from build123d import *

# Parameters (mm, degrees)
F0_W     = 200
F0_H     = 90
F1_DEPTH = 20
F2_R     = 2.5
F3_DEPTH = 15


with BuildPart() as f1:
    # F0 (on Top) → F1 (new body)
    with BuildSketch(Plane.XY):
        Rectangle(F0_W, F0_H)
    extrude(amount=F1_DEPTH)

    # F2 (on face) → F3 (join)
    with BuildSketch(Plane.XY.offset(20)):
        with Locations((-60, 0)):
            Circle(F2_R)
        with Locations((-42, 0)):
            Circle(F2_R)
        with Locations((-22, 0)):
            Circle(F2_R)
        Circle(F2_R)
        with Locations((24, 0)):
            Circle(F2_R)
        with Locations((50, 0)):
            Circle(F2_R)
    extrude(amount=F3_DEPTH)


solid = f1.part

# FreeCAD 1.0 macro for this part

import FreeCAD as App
import Part
import Sketcher

V = App.Vector

doc = App.newDocument("Part")
params = doc.addObject("Spreadsheet::Sheet", "Params")
for row, (alias, value) in enumerate([
    ("sketch1_width", "200 mm"),
    ("sketch1_height", "90 mm"),
    ("pad1_length", "20 mm"),
    ("sketch2_diameter", "5 mm"),
    ("pad2_length", "15 mm"),
], start=1):
    params.set(f"A{row}", alias)
    params.set(f"B{row}", "=" + value)
    params.setAlias(f"B{row}", alias)

body = doc.addObject("PartDesign::Body", "Body")

# Sketch on XY plane
sketch1 = body.newObject("Sketcher::SketchObject", "Sketch")
sketch1.AttachmentSupport = (doc.getObject("XY_Plane"), [""])
sketch1.MapMode = "FlatFace"
sketch1.addGeometry(Part.LineSegment(V(-100, 45, 0), V(-100, -45, 0)), False)
sketch1.addGeometry(Part.LineSegment(V(-100, -45, 0), V(100, -45, 0)), False)
sketch1.addGeometry(Part.LineSegment(V(100, -45, 0), V(100, 45, 0)), False)
sketch1.addGeometry(Part.LineSegment(V(100, 45, 0), V(-100, 45, 0)), False)
sketch1.addConstraint(Sketcher.Constraint("Coincident", 0, 2, 1, 1))
sketch1.addConstraint(Sketcher.Constraint("Coincident", 1, 2, 2, 1))
sketch1.addConstraint(Sketcher.Constraint("Coincident", 2, 2, 3, 1))
sketch1.addConstraint(Sketcher.Constraint("Coincident", 3, 2, 0, 1))
sketch1.addConstraint(Sketcher.Constraint("Vertical", 0))
sketch1.addConstraint(Sketcher.Constraint("Horizontal", 1))
sketch1.addConstraint(Sketcher.Constraint("Vertical", 2))
sketch1.addConstraint(Sketcher.Constraint("Horizontal", 3))
sketch1.addConstraint(Sketcher.Constraint("Symmetric", 0, 2, 2, 2, -1, 1))
sketch1.addConstraint(Sketcher.Constraint("DistanceX", 1, 1, 1, 2, 200.0))
sketch1.addConstraint(Sketcher.Constraint("DistanceY", 0, 2, 0, 1, 90.0))
sketch1.setExpression("Constraints[9]", "Params.sketch1_width")
sketch1.setExpression("Constraints[10]", "Params.sketch1_height")
pad1 = body.newObject("PartDesign::Pad", "Pad")
pad1.Profile = sketch1
pad1.setExpression("Length", "Params.pad1_length")

# Sketch on XY plane
sketch2 = body.newObject("Sketcher::SketchObject", "Sketch001")
sketch2.AttachmentSupport = (doc.getObject("XY_Plane"), [""])
sketch2.MapMode = "FlatFace"
sketch2.AttachmentOffset = App.Placement(V(0, 0, 20), App.Rotation())
sketch2.addGeometry(Part.Circle(V(-60, 0, 0), V(0, 0, 1), 2.5), False)
sketch2.addGeometry(Part.Circle(V(-42, 0, 0), V(0, 0, 1), 2.5), False)
sketch2.addGeometry(Part.Circle(V(-22, 0, 0), V(0, 0, 1), 2.5), False)
sketch2.addGeometry(Part.Circle(V(0, 0, 0), V(0, 0, 1), 2.5), False)
sketch2.addGeometry(Part.Circle(V(24, 0, 0), V(0, 0, 1), 2.5), False)
sketch2.addGeometry(Part.Circle(V(50, 0, 0), V(0, 0, 1), 2.5), False)
sketch2.addConstraint(Sketcher.Constraint("Coincident", 3, 3, -1, 1))
sketch2.addConstraint(Sketcher.Constraint("Equal", 0, 1))
sketch2.addConstraint(Sketcher.Constraint("Equal", 1, 2))
sketch2.addConstraint(Sketcher.Constraint("Equal", 2, 3))
sketch2.addConstraint(Sketcher.Constraint("Equal", 3, 4))
sketch2.addConstraint(Sketcher.Constraint("Equal", 4, 5))
sketch2.addConstraint(Sketcher.Constraint("PointOnObject", 0, 3, -1))
sketch2.addConstraint(Sketcher.Constraint("PointOnObject", 1, 3, -1))
sketch2.addConstraint(Sketcher.Constraint("PointOnObject", 2, 3, -1))
sketch2.addConstraint(Sketcher.Constraint("PointOnObject", 4, 3, -1))
sketch2.addConstraint(Sketcher.Constraint("PointOnObject", 5, 3, -1))
sketch2.addConstraint(Sketcher.Constraint("Diameter", 0, 5.0))
sketch2.addConstraint(Sketcher.Constraint("DistanceX", 0, 3, -1, 1, 60.0))
sketch2.addConstraint(Sketcher.Constraint("DistanceX", 1, 3, -1, 1, 42.0))
sketch2.addConstraint(Sketcher.Constraint("DistanceX", 2, 3, -1, 1, 22.0))
sketch2.addConstraint(Sketcher.Constraint("DistanceX", -1, 1, 4, 3, 24.0))
sketch2.addConstraint(Sketcher.Constraint("DistanceX", -1, 1, 5, 3, 50.0))
sketch2.setExpression("Constraints[11]", "Params.sketch2_diameter")
pad2 = body.newObject("PartDesign::Pad", "Pad001")
pad2.Profile = sketch2
pad2.setExpression("Length", "Params.pad2_length")

doc.recompute()
